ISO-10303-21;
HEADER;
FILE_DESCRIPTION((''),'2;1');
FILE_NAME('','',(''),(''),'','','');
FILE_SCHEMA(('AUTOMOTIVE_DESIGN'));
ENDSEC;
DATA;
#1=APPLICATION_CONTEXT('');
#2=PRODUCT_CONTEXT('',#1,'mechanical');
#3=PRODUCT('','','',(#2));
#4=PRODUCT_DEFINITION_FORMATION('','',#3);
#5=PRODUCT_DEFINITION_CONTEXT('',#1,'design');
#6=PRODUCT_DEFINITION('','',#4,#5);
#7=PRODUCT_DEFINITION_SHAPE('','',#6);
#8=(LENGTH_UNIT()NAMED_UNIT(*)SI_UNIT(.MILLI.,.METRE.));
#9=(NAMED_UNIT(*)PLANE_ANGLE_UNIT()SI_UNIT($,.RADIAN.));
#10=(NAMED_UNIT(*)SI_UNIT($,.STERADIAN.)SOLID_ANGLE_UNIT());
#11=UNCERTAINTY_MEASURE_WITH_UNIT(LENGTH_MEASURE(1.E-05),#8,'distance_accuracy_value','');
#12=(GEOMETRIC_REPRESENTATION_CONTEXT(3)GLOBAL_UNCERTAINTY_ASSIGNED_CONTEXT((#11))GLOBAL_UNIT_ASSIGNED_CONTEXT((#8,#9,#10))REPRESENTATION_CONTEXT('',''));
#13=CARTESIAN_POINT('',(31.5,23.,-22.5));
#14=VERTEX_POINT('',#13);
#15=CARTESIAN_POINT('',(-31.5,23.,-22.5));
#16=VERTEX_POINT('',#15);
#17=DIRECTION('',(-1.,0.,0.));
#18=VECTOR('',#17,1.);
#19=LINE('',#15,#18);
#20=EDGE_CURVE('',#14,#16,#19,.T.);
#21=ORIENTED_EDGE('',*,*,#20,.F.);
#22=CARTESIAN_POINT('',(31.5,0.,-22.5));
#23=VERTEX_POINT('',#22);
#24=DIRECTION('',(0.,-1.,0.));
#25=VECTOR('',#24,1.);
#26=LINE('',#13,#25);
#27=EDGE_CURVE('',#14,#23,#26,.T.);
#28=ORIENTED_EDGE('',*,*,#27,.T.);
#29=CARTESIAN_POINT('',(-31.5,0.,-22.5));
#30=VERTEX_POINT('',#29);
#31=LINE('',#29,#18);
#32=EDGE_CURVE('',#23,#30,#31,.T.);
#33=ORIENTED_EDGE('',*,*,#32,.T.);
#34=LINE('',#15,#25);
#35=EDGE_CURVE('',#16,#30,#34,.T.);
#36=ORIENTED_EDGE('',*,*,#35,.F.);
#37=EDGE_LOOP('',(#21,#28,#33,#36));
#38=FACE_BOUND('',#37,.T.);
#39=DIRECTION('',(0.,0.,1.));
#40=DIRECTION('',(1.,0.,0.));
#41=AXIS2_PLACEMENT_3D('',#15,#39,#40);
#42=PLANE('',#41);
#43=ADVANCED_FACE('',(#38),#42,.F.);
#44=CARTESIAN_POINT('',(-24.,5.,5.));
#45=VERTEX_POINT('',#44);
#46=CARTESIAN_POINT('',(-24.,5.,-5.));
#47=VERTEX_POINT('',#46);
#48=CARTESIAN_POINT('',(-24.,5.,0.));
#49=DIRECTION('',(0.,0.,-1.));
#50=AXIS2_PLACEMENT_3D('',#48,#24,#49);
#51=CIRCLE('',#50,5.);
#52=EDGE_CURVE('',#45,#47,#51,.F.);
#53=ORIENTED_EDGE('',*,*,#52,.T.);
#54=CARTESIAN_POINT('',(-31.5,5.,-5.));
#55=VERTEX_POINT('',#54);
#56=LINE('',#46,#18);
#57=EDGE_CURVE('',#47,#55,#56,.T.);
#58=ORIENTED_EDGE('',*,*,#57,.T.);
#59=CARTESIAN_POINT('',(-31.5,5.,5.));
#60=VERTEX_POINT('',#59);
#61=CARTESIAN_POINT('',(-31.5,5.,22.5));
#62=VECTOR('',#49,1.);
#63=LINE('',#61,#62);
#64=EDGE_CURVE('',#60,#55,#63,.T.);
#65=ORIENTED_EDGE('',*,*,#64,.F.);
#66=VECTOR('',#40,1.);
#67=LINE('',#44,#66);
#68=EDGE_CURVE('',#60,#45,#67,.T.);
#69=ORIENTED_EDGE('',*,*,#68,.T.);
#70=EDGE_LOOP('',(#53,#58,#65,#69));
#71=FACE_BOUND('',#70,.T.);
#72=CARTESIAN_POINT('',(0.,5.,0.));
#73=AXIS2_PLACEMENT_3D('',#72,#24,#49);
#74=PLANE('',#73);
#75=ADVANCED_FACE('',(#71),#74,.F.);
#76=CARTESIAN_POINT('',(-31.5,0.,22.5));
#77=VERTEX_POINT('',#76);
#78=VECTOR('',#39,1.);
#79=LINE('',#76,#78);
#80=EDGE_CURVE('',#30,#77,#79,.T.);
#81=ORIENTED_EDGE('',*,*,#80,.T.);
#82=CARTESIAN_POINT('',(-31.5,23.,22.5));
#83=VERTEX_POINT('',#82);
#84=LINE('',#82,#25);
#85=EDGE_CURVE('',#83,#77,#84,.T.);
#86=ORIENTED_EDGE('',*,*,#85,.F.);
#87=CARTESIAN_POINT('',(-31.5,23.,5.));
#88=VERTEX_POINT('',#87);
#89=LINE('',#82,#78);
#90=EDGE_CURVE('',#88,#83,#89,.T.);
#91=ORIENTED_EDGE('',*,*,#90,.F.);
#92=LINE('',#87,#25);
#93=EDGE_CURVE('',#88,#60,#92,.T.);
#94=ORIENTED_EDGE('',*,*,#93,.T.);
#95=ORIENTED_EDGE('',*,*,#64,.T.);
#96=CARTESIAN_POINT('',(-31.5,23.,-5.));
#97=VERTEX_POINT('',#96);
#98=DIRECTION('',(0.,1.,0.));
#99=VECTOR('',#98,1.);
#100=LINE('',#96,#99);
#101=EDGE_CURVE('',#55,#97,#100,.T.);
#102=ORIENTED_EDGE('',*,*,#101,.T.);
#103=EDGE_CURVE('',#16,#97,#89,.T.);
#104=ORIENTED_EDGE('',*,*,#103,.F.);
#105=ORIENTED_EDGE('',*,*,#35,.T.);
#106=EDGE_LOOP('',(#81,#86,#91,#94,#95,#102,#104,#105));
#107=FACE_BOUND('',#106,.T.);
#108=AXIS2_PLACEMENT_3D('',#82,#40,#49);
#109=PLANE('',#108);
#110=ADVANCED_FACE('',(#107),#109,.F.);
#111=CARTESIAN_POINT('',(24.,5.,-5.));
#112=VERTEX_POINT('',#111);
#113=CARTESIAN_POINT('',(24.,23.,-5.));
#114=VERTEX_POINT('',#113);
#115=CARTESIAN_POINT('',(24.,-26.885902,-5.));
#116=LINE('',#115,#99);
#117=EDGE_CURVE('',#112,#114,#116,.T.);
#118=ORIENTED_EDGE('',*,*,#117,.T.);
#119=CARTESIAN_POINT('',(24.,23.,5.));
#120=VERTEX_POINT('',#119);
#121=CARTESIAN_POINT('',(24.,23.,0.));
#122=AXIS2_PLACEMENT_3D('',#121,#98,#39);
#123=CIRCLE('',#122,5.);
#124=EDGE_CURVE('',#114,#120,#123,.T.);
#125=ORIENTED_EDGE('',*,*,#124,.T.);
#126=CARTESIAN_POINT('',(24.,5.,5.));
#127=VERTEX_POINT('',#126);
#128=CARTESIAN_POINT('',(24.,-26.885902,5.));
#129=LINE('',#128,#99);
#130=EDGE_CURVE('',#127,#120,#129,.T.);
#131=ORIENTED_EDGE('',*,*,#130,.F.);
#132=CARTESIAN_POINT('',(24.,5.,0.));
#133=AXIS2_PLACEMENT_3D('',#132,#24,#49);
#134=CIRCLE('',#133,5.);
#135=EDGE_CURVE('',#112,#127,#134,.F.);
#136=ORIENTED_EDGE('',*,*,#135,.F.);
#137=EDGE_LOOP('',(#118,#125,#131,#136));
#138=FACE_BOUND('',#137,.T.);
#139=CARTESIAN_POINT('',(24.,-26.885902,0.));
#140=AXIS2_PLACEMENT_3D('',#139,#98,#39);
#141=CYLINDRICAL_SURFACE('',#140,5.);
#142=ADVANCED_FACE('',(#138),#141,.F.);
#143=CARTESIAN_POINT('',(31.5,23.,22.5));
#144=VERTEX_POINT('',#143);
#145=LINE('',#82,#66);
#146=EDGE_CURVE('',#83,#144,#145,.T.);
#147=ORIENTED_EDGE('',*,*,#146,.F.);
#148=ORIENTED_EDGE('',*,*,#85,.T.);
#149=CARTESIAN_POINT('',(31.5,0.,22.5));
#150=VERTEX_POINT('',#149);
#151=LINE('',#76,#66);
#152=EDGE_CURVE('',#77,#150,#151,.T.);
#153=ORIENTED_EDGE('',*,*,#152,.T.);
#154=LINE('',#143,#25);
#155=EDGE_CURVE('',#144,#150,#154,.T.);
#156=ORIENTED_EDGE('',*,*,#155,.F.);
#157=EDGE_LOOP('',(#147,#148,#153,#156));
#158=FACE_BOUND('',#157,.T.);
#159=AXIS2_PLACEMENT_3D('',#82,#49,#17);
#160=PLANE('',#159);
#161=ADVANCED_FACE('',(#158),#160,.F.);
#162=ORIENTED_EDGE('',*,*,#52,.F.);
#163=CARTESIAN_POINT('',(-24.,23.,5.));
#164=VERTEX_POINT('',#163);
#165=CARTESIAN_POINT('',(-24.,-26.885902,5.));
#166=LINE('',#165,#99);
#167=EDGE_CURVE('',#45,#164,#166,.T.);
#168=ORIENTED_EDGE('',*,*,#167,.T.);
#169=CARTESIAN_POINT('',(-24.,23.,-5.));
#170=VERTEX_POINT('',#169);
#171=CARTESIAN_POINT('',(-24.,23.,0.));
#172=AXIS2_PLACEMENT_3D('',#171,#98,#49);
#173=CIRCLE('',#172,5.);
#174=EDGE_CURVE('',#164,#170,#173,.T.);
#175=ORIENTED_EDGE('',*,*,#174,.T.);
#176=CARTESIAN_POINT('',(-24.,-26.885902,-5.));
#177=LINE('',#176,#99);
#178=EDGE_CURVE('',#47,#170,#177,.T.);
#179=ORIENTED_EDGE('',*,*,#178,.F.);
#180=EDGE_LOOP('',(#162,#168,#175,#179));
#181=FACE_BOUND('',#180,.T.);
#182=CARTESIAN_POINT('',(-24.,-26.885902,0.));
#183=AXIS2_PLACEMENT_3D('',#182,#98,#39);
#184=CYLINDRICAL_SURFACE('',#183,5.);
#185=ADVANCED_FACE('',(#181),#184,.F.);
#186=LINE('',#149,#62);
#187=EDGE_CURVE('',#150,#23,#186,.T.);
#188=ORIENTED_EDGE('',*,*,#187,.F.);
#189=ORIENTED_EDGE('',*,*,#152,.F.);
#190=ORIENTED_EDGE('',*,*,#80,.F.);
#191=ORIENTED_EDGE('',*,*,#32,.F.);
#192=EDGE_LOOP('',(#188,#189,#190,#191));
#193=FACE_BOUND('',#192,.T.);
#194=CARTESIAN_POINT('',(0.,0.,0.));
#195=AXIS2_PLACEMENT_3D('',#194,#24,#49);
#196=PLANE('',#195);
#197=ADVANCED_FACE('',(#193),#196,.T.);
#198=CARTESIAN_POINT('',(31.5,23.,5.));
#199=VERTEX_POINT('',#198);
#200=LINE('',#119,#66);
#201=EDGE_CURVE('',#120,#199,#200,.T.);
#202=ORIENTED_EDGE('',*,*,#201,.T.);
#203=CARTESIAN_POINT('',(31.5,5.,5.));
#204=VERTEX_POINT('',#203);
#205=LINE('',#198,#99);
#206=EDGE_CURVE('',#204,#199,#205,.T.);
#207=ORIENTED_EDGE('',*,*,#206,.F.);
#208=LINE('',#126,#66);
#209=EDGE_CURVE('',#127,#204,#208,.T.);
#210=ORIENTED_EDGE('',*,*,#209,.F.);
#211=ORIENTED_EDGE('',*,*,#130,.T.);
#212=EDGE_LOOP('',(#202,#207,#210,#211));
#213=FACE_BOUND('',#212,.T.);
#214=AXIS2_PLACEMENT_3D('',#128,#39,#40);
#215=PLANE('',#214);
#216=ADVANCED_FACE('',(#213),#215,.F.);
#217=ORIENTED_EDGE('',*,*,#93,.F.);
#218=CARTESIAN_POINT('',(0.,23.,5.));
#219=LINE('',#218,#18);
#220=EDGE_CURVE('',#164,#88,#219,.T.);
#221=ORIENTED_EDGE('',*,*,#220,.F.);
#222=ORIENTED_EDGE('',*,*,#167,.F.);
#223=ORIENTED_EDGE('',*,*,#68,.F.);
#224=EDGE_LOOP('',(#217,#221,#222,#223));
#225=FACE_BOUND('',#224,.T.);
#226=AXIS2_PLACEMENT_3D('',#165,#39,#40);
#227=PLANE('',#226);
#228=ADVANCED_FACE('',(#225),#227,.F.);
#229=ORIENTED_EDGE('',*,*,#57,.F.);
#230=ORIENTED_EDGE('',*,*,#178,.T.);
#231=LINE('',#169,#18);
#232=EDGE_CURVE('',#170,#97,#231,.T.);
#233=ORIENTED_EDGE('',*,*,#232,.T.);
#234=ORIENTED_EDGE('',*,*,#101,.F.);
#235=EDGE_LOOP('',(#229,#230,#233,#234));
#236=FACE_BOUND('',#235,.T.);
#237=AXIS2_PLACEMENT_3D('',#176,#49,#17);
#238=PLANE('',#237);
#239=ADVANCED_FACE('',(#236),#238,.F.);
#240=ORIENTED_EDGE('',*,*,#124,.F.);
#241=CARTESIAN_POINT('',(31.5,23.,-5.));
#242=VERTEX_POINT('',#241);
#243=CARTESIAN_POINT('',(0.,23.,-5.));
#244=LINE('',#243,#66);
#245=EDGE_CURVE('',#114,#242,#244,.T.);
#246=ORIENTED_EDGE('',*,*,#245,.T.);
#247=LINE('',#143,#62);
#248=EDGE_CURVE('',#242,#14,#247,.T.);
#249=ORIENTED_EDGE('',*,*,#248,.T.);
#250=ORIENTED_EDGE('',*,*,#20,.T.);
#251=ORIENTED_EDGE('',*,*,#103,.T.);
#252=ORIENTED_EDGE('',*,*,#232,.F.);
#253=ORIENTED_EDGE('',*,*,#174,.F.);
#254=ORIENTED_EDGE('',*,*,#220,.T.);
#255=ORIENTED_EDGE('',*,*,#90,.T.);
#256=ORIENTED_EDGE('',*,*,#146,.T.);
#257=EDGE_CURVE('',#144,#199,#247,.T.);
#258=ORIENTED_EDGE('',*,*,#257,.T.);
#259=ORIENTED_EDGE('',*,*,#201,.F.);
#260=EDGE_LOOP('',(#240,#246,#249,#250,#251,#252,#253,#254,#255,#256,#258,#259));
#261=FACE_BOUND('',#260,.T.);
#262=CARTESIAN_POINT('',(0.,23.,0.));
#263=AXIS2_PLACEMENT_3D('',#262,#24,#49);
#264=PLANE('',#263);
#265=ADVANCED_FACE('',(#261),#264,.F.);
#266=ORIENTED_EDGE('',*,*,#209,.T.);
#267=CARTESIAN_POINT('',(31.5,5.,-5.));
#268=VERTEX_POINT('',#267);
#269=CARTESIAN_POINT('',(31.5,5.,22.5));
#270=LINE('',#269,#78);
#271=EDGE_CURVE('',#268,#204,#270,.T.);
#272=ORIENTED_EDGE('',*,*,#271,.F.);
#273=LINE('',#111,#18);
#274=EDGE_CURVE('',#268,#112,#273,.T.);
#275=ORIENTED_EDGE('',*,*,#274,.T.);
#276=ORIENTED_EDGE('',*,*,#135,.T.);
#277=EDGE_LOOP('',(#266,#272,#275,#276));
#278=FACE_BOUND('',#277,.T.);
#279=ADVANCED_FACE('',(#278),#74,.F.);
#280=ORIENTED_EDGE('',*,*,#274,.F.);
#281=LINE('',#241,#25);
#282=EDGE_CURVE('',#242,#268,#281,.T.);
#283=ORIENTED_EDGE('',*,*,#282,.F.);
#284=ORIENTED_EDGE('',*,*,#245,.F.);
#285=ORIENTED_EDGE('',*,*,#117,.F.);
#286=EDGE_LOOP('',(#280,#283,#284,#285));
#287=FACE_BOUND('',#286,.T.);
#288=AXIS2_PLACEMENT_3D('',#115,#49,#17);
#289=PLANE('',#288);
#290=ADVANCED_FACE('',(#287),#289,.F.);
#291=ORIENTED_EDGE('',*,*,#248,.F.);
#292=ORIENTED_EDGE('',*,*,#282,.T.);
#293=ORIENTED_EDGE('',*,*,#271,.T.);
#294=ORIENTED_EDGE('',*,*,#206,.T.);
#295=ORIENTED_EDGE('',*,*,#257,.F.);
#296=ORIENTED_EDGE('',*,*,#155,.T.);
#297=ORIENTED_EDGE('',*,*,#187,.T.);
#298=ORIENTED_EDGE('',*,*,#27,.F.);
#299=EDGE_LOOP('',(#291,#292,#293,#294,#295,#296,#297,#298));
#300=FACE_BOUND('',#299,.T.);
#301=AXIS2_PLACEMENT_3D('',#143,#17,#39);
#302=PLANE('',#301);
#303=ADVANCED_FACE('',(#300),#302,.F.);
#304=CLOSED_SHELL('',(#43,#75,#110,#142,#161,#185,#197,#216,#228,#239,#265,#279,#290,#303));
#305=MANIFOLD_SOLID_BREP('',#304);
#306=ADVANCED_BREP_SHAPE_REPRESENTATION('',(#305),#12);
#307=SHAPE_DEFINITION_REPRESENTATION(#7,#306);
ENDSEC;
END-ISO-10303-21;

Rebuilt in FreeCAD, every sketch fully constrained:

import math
import FreeCAD as App
import Part
import Sketcher
from FreeCAD import Vector


def add_polygon(sketch, points):
    """Adds a closed chain of lines whose ends are joined by coincident constraints."""
    first, n = sketch.GeometryCount, len(points)
    for a, b in zip(points, points[1:] + points[:1]):
        sketch.addGeometry(Part.LineSegment(App.Vector(*a, 0), App.Vector(*b, 0)), False)
    for i in range(n):
        sketch.addConstraint(Sketcher.Constraint("Coincident", first + i, 2, first + (i + 1) % n, 1))

doc = App.newDocument("Part")
body = doc.addObject("PartDesign::Body", "Body")

# Sketch on XZ plane
sketch1 = body.newObject("Sketcher::SketchObject", "Sketch")
sketch1.AttachmentSupport = (doc.getObject("XZ_Plane"), [""])
sketch1.MapMode = "FlatFace"
add_polygon(sketch1, [(-32, -22), (-32, 22), (32, 22), (32, -22)])  # lines 0-3
sketch1.addConstraint([
    Sketcher.Constraint("Vertical", 0),
    Sketcher.Constraint("Horizontal", 1),
    Sketcher.Constraint("Vertical", 2),
    Sketcher.Constraint("Horizontal", 3),
    Sketcher.Constraint("Symmetric", 0, 2, 2, 2, -1, 1),
    Sketcher.Constraint("DistanceX", 1, 1, 1, 2, 63.0),
    Sketcher.Constraint("DistanceY", 0, 1, 0, 2, 45.0),
])
pad1 = body.newObject("PartDesign::Pad", "Pad")
pad1.Profile = sketch1
pad1.Length = 23
pad1.Reversed = True

# Sketch on XZ plane
sketch2 = body.newObject("Sketcher::SketchObject", "Sketch001")
sketch2.AttachmentSupport = (doc.getObject("XZ_Plane"), [""])
sketch2.MapMode = "FlatFace"
sketch2.AttachmentOffset = App.Placement(Vector(0, 0, -23), App.Rotation())
sketch2.addGeometry([
    Part.LineSegment(Vector(39, -5, 0), Vector(24, -5, 0)),  # 0
    Part.ArcOfCircle(Part.Circle(Vector(24, 0, 0), Vector(0, 0, 1), 5), math.radians(90), math.radians(270)),  # 1
    Part.LineSegment(Vector(24, 5, 0), Vector(39, 5, 0)),  # 2
    Part.ArcOfCircle(Part.Circle(Vector(39, 0, 0), Vector(0, 0, 1), 5), math.radians(-90), math.radians(90)),  # 3
    Part.LineSegment(Vector(-24, -5, 0), Vector(-39, -5, 0)),  # 4
    Part.ArcOfCircle(Part.Circle(Vector(-39, 0, 0), Vector(0, 0, 1), 5), math.radians(90), math.radians(270)),  # 5
    Part.LineSegment(Vector(-39, 5, 0), Vector(-24, 5, 0)),  # 6
    Part.ArcOfCircle(Part.Circle(Vector(-24, 0, 0), Vector(0, 0, 1), 5), math.radians(-90), math.radians(90)),  # 7
], False)
sketch2.addConstraint([
    Sketcher.Constraint("Tangent", 0, 2, 1, 2),
    Sketcher.Constraint("Tangent", 1, 1, 2, 1),
    Sketcher.Constraint("Tangent", 2, 2, 3, 2),
    Sketcher.Constraint("Tangent", 3, 1, 0, 1),
    Sketcher.Constraint("Tangent", 4, 2, 5, 2),
    Sketcher.Constraint("Tangent", 5, 1, 6, 1),
    Sketcher.Constraint("Tangent", 6, 2, 7, 2),
    Sketcher.Constraint("Tangent", 7, 1, 4, 1),
    Sketcher.Constraint("Horizontal", 0),
    Sketcher.Constraint("Horizontal", 2),
    Sketcher.Constraint("Horizontal", 4),
    Sketcher.Constraint("Horizontal", 6),
    Sketcher.Constraint("Equal", 3, 5),
    Sketcher.Constraint("Symmetric", 3, 3, 5, 3, -1, 1),
    Sketcher.Constraint("Symmetric", 1, 3, 7, 3, -2),
    Sketcher.Constraint("Radius", 1, 5.0),
    Sketcher.Constraint("DistanceX", -1, 1, 1, 3, 24.0),
    Sketcher.Constraint("DistanceX", 0, 2, 0, 1, 14.956997),
])
pocket1 = body.newObject("PartDesign::Pocket", "Pocket")
pocket1.Profile = sketch2
pocket1.Length = 18
pocket1.Reversed = True

doc.recompute()
